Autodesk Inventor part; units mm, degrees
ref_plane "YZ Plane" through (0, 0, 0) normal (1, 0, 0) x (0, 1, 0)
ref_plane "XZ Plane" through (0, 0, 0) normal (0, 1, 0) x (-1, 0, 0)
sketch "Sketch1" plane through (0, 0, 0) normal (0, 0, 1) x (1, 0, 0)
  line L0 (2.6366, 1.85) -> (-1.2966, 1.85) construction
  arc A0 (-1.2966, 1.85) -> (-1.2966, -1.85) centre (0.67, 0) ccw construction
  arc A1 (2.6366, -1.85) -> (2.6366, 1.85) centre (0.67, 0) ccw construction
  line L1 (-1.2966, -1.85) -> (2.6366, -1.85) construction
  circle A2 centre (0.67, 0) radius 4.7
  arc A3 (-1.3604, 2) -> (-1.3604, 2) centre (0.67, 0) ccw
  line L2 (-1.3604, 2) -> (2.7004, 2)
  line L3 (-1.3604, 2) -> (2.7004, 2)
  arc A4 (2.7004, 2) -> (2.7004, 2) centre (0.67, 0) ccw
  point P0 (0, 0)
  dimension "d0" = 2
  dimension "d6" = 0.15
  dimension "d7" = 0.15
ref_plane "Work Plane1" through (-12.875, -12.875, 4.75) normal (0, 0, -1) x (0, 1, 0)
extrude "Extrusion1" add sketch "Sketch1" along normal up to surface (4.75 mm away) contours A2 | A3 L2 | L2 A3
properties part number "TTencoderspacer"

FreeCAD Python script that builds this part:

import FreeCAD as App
import Part
import Sketcher
from FreeCAD import Vector

doc = App.newDocument("Part")
body = doc.addObject("PartDesign::Body", "Body")

# Sketch on XY plane
sketch1 = body.newObject("Sketcher::SketchObject", "Sketch")
sketch1.AttachmentSupport = (doc.getObject("XY_Plane"), [""])
sketch1.MapMode = "FlatFace"
sketch1.addGeometry(Part.Circle(Vector(0.7, 0, 0), Vector(0, 0, 1), 4.7), False)
sketch1.addConstraint([
    Sketcher.Constraint("PointOnObject", 0, 3, -1),
    Sketcher.Constraint("Diameter", 0, 9.4),
    Sketcher.Constraint("DistanceX", -1, 1, 0, 3, 0.67),
])
pad1 = body.newObject("PartDesign::Pad", "Pad")
pad1.Profile = sketch1
pad1.Length = 4.75

doc.recompute()
